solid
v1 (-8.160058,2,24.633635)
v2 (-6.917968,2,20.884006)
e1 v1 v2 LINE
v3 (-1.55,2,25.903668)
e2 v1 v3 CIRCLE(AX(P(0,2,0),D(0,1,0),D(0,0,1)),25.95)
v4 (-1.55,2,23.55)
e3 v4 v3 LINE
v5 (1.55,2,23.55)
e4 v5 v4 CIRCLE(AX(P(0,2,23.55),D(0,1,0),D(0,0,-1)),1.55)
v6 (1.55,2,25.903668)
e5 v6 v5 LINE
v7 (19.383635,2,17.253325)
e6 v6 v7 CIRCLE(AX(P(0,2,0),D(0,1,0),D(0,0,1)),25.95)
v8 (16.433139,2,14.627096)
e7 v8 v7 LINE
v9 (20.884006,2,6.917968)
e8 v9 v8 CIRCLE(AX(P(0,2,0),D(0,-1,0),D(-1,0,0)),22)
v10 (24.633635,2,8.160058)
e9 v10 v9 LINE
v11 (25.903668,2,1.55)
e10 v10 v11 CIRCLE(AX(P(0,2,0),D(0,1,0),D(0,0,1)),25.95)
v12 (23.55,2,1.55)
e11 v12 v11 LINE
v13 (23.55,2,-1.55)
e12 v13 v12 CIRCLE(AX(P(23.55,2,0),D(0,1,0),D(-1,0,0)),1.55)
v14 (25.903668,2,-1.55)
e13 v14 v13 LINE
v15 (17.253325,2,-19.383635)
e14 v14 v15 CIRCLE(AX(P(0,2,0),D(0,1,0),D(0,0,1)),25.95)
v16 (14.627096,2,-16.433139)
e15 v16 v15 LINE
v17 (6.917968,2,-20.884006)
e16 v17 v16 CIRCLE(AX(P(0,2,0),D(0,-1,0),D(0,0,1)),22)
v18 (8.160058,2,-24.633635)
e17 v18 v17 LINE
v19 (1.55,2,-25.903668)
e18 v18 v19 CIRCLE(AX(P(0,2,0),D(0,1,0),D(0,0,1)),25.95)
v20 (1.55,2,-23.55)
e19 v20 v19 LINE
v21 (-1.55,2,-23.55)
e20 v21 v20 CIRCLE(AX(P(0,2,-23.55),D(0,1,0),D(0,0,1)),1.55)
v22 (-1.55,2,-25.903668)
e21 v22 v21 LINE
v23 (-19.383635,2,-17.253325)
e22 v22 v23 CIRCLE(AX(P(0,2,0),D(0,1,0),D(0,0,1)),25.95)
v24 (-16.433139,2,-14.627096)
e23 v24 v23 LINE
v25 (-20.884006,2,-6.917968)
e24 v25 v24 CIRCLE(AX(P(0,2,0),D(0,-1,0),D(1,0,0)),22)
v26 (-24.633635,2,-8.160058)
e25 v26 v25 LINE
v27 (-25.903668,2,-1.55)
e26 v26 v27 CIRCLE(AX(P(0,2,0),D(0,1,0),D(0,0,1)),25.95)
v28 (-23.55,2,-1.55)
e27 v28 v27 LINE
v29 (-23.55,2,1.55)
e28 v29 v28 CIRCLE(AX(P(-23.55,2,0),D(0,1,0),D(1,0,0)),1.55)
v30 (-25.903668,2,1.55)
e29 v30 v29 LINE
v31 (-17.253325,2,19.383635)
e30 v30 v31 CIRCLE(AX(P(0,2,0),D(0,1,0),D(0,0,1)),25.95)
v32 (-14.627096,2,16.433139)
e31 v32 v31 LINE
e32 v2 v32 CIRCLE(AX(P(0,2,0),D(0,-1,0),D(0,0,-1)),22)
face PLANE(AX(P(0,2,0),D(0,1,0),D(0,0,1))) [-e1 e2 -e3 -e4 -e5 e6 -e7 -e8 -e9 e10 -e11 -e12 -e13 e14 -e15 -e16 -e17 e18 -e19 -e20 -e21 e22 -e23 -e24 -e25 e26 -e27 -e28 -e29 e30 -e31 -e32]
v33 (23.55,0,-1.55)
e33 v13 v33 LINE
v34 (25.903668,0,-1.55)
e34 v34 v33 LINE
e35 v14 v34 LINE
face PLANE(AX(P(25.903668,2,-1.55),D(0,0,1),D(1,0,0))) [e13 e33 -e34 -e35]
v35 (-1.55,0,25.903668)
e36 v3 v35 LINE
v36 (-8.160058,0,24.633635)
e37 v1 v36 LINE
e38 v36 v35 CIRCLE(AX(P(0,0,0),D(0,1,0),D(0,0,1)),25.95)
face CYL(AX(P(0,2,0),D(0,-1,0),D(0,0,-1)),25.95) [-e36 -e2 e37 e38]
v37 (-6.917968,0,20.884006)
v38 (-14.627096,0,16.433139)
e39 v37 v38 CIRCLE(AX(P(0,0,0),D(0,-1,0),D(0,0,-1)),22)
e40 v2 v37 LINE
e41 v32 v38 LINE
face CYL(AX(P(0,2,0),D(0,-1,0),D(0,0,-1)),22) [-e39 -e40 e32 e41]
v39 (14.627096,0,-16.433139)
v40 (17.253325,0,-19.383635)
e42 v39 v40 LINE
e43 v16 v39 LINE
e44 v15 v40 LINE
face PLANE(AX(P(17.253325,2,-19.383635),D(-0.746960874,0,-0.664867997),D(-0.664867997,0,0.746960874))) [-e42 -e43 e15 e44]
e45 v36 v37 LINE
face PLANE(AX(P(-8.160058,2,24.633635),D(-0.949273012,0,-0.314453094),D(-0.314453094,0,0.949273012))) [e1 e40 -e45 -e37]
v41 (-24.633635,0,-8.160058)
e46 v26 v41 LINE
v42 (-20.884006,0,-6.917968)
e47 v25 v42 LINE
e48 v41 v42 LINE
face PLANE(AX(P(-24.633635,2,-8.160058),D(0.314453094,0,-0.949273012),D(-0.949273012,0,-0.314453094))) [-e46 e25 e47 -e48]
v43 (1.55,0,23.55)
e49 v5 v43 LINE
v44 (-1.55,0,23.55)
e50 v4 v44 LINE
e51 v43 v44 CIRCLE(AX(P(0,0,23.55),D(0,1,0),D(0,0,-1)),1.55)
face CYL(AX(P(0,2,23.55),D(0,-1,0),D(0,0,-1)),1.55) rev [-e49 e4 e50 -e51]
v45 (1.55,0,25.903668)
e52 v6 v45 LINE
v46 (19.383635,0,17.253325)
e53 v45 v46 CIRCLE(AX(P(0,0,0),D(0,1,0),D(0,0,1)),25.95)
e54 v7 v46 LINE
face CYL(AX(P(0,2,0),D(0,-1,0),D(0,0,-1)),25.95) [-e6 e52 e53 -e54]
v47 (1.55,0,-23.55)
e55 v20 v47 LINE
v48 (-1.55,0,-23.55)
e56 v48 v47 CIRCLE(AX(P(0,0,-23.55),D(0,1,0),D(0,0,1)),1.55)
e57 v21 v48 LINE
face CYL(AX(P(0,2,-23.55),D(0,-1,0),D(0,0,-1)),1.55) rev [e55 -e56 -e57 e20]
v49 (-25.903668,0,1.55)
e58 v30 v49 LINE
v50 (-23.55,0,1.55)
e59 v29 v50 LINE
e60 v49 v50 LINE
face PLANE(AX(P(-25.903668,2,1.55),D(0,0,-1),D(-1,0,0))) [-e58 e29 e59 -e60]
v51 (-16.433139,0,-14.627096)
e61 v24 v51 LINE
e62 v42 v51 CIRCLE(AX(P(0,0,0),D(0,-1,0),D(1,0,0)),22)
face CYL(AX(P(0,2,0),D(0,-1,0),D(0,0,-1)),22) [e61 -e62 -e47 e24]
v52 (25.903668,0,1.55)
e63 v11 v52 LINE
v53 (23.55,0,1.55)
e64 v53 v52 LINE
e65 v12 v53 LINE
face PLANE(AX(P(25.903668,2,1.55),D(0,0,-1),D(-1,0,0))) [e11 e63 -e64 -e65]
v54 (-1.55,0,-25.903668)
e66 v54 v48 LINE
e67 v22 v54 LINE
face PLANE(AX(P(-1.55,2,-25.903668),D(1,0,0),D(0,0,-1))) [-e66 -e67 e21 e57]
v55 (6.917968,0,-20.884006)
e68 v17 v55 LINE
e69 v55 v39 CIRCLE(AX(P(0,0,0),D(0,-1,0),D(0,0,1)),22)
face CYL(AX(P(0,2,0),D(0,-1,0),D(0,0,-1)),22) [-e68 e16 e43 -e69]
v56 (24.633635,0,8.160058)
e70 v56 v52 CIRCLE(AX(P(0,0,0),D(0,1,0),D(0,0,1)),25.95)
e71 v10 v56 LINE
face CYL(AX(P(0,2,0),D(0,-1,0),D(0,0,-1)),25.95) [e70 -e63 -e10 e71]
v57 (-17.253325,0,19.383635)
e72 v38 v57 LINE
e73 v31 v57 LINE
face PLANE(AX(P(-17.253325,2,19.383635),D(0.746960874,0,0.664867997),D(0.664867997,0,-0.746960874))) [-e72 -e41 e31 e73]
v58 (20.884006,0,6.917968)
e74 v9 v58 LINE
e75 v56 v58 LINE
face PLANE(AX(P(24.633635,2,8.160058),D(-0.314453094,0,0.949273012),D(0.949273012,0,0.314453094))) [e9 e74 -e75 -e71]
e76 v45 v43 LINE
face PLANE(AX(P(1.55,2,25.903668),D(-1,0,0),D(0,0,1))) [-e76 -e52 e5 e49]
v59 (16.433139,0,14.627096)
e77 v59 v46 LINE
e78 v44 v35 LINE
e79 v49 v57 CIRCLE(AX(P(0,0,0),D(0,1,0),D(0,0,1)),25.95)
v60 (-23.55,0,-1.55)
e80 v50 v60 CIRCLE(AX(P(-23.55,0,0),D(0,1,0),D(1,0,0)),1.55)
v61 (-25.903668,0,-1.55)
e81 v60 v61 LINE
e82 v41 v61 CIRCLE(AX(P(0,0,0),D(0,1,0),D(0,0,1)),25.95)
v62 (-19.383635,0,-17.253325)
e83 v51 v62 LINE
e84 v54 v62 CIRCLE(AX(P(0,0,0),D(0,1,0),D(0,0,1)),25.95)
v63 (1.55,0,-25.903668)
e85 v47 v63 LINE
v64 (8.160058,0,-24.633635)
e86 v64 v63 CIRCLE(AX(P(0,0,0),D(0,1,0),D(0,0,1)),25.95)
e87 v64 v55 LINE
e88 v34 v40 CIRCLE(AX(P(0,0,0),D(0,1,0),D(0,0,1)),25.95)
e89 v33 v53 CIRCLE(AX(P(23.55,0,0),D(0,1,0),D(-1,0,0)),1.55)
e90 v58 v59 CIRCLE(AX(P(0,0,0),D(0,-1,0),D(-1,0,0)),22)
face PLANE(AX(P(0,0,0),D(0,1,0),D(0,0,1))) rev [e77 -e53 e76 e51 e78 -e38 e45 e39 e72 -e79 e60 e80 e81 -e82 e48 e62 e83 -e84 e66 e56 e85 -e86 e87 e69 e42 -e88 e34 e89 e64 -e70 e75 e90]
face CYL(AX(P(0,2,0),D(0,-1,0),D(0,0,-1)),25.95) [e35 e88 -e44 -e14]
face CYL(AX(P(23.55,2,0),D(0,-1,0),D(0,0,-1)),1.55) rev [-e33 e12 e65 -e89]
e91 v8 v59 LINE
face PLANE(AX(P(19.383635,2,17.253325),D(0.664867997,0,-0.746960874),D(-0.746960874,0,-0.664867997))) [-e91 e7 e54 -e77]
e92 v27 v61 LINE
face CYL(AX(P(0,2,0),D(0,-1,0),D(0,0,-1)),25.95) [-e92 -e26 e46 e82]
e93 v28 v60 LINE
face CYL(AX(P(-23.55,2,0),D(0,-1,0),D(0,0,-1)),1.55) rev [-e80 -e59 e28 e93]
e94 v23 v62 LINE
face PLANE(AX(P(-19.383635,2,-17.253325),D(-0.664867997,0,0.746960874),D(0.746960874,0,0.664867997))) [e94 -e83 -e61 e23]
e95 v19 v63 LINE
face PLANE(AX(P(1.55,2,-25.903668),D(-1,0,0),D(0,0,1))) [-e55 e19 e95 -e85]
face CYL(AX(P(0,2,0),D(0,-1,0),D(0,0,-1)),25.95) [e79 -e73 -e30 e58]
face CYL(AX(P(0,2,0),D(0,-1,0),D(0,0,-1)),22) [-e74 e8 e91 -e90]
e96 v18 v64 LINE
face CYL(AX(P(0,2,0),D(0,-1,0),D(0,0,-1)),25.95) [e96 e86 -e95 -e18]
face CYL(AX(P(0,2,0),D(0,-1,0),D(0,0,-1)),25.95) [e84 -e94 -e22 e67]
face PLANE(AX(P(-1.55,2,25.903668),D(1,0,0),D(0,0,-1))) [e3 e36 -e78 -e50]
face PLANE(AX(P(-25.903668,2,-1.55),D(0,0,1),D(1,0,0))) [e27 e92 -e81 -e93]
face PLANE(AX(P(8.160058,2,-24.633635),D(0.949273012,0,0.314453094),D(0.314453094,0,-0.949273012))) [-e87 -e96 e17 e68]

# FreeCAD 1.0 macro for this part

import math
import FreeCAD as App
import Part
import Sketcher
from FreeCAD import Vector

doc = App.newDocument("Part")
body = doc.addObject("PartDesign::Body", "Body")

# Sketch on XZ plane
sketch1 = doc.addObject("Sketcher::SketchObject", "Sketch")
body.addObject(sketch1)
sketch1.AttachmentSupport = (doc.XZ_Plane, [""])
sketch1.MapMode = "FlatFace"
sketch1.addGeometry(Part.Circle(Vector(0, 0, 0), Vector(0, 0, 1), 25.95), False)
sketch1.addConstraint([
    Sketcher.Constraint("Coincident", 0, 3, -1, 1),
    Sketcher.Constraint("Diameter", 0, 51.9),
])
pad1 = doc.addObject("PartDesign::Pad", "Pad")
body.addObject(pad1)
pad1.Profile = sketch1
pad1.Length = 2
pad1.Reversed = True

# Sketch on XZ plane
sketch2 = doc.addObject("Sketcher::SketchObject", "Sketch001")
body.addObject(sketch2)
sketch2.AttachmentSupport = (doc.XZ_Plane, [""])
sketch2.MapMode = "FlatFace"
sketch2.addGeometry([
    Part.LineSegment(Vector(-1.55, -25.903668, 0), Vector(-1.55, -23.55, 0)),  # 0
    Part.ArcOfCircle(Part.Circle(Vector(0, -23.55, 0), Vector(0, 0, 1), 1.55), math.radians(0), math.radians(180)),  # 1
    Part.LineSegment(Vector(1.55, -23.55, 0), Vector(1.55, -25.903668, 0)),  # 2
    Part.ArcOfCircle(Part.Circle(Vector(0, 0, 0), Vector(0, 0, 1), 25.95), math.radians(-93.424329), math.radians(-86.575671)),  # 3
    Part.LineSegment(Vector(8.160058, -24.633635, 0), Vector(6.917968, -20.884006, 0)),  # 4
    Part.ArcOfCircle(Part.Circle(Vector(0, 0, 0), Vector(0, 0, 1), 22), math.radians(-71.672199), math.radians(-48.327801)),  # 5
    Part.LineSegment(Vector(14.627096, -16.433139, 0), Vector(17.253325, -19.383635, 0)),  # 6
    Part.ArcOfCircle(Part.Circle(Vector(0, 0, 0), Vector(0, 0, 1), 25.95), math.radians(-71.672199), math.radians(-48.327801)),  # 7
], False)
sketch2.addConstraint([
    Sketcher.Constraint("Tangent", 0, 2, 1, 2),
    Sketcher.Constraint("Tangent", 1, 1, 2, 1),
    Sketcher.Constraint("Coincident", 2, 2, 3, 2),
    Sketcher.Constraint("Coincident", 3, 1, 0, 1),
    Sketcher.Constraint("Coincident", 4, 2, 5, 1),
    Sketcher.Constraint("Coincident", 5, 2, 6, 1),
    Sketcher.Constraint("Coincident", 6, 2, 7, 2),
    Sketcher.Constraint("Coincident", 7, 1, 4, 1),
    Sketcher.Constraint("Vertical", 0),
    Sketcher.Constraint("Vertical", 2),
    Sketcher.Constraint("Coincident", 3, 3, -1, 1),
    Sketcher.Constraint("Coincident", 5, 3, -1, 1),
    Sketcher.Constraint("Coincident", 7, 3, -1, 1),
    Sketcher.Constraint("Equal", 3, 7),
    Sketcher.Constraint("PointOnObject", 1, 3, -2),
    Sketcher.Constraint("Radius", 5, 22.0),
    Sketcher.Constraint("Radius", 1, 1.55),
    Sketcher.Constraint("Radius", 3, 25.95),
    Sketcher.Constraint("DistanceY", 1, 3, -1, 1, 23.55),
    Sketcher.Constraint("DistanceX", -1, 1, 4, 2, 6.917968),
    Sketcher.Constraint("DistanceY", 5, 2, -1, 1, 16.433139),
    Sketcher.Constraint("DistanceX", 5, 2, 6, 2, 2.626229),
    Sketcher.Constraint("DistanceX", 4, 2, 7, 1, 1.24209),
])
pocket1 = doc.addObject("PartDesign::Pocket", "Pocket")
body.addObject(pocket1)
pocket1.Profile = sketch2
pocket1.Length = 2
doc.recompute()

polarpattern = doc.addObject("PartDesign::PolarPattern", "PolarPattern")
body.addObject(polarpattern)
polarpattern.Originals = [pocket1]
polarpattern.Axis = (doc.Y_Axis, [""])
polarpattern.Angle = 360
polarpattern.Occurrences = 4
body.Tip = polarpattern

doc.recompute()
